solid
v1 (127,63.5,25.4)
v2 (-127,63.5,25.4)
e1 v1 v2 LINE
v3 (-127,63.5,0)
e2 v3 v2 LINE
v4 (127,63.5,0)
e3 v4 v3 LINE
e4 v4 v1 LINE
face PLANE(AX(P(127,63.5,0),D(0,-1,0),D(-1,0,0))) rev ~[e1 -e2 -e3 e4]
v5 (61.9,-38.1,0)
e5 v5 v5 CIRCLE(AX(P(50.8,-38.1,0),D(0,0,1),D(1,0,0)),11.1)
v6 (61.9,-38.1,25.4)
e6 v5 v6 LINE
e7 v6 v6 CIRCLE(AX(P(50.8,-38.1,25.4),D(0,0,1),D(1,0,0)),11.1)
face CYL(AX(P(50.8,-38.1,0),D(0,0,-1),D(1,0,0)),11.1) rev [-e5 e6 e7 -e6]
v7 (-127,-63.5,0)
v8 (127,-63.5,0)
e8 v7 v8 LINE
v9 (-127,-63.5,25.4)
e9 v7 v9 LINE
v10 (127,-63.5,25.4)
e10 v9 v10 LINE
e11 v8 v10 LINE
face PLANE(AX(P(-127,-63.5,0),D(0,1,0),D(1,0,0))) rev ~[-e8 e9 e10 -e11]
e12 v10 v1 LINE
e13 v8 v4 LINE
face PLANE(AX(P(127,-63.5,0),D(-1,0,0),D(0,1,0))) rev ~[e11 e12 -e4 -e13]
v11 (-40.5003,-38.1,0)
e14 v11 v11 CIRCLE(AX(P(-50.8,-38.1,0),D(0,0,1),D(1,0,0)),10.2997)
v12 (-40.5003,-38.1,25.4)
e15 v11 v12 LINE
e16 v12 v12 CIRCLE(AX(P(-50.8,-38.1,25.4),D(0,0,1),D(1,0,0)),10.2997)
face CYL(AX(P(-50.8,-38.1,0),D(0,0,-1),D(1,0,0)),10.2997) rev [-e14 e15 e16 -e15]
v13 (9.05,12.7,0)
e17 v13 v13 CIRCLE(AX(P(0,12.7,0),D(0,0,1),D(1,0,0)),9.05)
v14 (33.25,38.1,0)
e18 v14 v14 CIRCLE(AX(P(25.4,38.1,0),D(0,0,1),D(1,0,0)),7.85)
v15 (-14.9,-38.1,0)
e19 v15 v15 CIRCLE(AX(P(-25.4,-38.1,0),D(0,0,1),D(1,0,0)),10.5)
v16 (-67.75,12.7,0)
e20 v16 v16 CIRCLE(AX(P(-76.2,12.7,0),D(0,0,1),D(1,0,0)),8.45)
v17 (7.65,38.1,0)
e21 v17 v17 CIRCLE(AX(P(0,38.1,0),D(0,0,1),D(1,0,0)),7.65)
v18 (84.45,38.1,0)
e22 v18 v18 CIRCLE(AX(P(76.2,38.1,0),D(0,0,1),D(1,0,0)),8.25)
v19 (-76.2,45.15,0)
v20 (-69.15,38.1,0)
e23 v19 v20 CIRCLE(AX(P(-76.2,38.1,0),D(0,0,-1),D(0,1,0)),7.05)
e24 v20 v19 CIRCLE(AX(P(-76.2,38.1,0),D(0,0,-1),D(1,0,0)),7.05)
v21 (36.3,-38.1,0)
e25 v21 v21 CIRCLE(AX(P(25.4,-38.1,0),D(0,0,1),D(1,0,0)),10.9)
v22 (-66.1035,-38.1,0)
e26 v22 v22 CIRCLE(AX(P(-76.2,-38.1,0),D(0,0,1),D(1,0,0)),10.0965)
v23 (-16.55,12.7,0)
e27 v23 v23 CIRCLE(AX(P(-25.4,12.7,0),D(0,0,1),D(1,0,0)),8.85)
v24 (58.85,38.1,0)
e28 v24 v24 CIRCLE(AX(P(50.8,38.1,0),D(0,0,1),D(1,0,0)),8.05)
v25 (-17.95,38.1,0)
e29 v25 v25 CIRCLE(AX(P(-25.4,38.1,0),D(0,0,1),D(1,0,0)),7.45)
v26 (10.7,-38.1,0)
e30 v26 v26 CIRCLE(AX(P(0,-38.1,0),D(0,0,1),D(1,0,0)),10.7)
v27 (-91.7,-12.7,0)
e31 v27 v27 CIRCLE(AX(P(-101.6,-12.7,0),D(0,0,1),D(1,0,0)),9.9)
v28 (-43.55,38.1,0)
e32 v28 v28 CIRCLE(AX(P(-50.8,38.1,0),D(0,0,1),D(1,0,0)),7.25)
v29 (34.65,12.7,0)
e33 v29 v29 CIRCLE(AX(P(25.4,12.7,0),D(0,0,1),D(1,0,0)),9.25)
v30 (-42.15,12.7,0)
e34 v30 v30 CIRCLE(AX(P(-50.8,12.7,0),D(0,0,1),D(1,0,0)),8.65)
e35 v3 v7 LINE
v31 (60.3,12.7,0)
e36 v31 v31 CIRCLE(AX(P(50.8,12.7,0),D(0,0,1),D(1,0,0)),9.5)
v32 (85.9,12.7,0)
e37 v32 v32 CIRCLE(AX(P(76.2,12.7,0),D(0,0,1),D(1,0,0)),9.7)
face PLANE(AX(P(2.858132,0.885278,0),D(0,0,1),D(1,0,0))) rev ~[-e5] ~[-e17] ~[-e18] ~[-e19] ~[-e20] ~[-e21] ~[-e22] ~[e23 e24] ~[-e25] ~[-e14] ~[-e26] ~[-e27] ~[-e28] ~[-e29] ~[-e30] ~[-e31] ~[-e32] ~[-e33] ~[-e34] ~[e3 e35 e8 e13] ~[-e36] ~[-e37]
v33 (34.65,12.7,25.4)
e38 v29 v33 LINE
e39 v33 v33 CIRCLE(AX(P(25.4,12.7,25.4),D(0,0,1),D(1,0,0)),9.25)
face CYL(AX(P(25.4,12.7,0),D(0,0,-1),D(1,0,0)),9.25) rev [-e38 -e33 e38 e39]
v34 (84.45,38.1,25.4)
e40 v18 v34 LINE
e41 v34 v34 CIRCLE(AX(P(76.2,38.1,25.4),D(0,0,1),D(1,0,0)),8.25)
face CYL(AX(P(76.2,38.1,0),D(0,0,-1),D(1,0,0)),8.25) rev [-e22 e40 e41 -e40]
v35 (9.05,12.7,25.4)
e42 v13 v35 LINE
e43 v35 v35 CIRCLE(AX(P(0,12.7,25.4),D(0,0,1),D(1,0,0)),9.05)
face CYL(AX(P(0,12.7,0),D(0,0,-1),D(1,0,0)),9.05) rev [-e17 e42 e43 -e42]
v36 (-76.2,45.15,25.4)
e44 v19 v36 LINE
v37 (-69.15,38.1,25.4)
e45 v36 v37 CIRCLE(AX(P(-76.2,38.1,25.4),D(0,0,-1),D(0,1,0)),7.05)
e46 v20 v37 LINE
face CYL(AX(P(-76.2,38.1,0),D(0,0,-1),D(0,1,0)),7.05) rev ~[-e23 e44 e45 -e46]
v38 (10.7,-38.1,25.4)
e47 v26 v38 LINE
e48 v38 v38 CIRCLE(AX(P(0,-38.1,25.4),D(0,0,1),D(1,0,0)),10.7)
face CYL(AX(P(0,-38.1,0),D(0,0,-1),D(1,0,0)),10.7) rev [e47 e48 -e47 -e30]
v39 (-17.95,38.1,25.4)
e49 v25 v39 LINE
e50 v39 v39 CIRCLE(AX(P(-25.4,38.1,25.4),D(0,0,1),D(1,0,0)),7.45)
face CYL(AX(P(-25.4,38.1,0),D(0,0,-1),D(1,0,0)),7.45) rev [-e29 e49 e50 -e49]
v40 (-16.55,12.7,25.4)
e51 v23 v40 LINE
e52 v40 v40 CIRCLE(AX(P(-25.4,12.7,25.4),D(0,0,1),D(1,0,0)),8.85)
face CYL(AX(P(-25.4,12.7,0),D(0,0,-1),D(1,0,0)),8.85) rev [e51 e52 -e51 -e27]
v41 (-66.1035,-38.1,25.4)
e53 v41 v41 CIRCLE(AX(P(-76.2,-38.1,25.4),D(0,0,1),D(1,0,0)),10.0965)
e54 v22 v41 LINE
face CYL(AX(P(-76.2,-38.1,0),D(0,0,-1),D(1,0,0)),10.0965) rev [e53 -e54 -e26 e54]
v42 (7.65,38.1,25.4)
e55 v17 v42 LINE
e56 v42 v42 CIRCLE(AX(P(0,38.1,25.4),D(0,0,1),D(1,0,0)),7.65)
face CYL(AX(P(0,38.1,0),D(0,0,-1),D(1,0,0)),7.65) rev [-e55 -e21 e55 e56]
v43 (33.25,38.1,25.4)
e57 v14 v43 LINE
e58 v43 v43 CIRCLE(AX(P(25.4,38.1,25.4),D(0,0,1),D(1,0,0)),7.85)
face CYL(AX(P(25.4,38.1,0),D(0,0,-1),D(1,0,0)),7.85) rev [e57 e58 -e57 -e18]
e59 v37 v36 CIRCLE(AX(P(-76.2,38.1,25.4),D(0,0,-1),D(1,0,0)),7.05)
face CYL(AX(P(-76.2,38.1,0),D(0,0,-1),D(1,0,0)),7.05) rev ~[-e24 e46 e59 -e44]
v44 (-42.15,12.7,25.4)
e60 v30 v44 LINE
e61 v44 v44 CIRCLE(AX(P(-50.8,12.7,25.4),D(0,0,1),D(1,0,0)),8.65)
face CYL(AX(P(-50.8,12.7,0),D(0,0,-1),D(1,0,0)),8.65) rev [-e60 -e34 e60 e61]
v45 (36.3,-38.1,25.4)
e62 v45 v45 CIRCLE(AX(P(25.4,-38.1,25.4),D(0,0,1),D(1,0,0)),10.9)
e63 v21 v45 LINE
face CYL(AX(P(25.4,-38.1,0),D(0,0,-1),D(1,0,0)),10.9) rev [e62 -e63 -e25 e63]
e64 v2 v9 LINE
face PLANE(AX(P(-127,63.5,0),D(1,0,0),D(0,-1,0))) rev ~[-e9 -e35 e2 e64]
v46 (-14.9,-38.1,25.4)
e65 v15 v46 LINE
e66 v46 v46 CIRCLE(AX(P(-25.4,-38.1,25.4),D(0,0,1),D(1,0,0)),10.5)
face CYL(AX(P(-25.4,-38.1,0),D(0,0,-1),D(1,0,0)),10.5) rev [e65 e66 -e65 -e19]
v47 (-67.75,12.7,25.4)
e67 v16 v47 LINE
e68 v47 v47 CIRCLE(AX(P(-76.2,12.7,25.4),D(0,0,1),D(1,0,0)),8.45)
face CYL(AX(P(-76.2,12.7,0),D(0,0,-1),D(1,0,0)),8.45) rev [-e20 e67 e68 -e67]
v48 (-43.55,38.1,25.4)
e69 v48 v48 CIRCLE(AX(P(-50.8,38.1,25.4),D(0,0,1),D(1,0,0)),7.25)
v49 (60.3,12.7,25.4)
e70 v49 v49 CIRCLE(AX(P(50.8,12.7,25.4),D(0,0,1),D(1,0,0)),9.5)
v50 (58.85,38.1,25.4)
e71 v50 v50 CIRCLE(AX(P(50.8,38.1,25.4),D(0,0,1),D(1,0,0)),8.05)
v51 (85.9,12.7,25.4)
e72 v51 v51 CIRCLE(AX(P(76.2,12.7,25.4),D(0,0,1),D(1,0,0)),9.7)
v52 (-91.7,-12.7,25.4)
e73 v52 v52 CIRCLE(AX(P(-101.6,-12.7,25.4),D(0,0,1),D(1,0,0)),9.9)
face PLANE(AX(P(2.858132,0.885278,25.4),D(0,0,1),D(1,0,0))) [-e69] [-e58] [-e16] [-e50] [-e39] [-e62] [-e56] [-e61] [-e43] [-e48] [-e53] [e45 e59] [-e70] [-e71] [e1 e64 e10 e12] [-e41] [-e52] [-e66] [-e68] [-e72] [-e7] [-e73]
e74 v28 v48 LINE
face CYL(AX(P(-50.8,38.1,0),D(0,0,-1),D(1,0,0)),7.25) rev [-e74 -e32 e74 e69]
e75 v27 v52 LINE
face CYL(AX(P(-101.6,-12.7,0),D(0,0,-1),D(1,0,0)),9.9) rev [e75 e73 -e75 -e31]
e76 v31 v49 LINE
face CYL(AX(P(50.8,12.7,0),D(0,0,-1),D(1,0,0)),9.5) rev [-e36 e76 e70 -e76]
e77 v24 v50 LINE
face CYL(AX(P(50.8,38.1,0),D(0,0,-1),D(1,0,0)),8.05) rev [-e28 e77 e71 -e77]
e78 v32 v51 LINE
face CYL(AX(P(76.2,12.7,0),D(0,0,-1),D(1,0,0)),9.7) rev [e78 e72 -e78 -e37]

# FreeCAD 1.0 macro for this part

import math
import FreeCAD as App
import Part
import Sketcher

V = App.Vector


def add_polygon(sketch, points):
    """Adds a closed chain of lines whose ends are joined by coincident constraints."""
    first, n = sketch.GeometryCount, len(points)
    for a, b in zip(points, points[1:] + points[:1]):
        sketch.addGeometry(Part.LineSegment(App.Vector(*a, 0), App.Vector(*b, 0)), False)
    for i in range(n):
        sketch.addConstraint(Sketcher.Constraint("Coincident", first + i, 2, first + (i + 1) % n, 1))

doc = App.newDocument("Part")
body = doc.addObject("PartDesign::Body", "Body")

sketch1 = body.newObject("Sketcher::SketchObject", "Sketch")
sketch1.AttachmentSupport = (doc.getObject("XY_Plane"), [""])
sketch1.MapMode = "FlatFace"
add_polygon(sketch1, [(127, 64), (-127, 64), (-127, -64), (127, -64)])
sketch1.addGeometry(Part.Circle(V(-76, -38, 0), V(0, 0, 1), 10), False)
sketch1.addGeometry(Part.Circle(V(-51, -38, 0), V(0, 0, 1), 10), False)
sketch1.addGeometry(Part.Circle(V(-25, -38, 0), V(0, 0, 1), 10), False)
sketch1.addGeometry(Part.Circle(V(0, -38, 0), V(0, 0, 1), 11), False)
sketch1.addGeometry(Part.Circle(V(-102, -13, 0), V(0, 0, 1), 10), False)
sketch1.addGeometry(Part.Circle(V(25, -38, 0), V(0, 0, 1), 11), False)
sketch1.addGeometry(Part.Circle(V(51, -38, 0), V(0, 0, 1), 11), False)
sketch1.addGeometry(Part.Circle(V(-76, 13, 0), V(0, 0, 1), 8), False)
sketch1.addGeometry(Part.Circle(V(-51, 13, 0), V(0, 0, 1), 9), False)
sketch1.addGeometry(Part.Circle(V(-25, 13, 0), V(0, 0, 1), 9), False)
sketch1.addGeometry(Part.Circle(V(0, 13, 0), V(0, 0, 1), 9), False)
sketch1.addGeometry(Part.ArcOfCircle(Part.Circle(V(-76, 38, 0), V(0, 0, 1), 7), math.radians(90), math.radians(360)), False)
sketch1.addGeometry(Part.ArcOfCircle(Part.Circle(V(-76, 38, 0), V(0, 0, 1), 7), math.radians(0), math.radians(90)), False)
sketch1.addGeometry(Part.Circle(V(-51, 38, 0), V(0, 0, 1), 7), False)
sketch1.addGeometry(Part.Circle(V(-25, 38, 0), V(0, 0, 1), 7), False)
sketch1.addGeometry(Part.Circle(V(0, 38, 0), V(0, 0, 1), 8), False)
sketch1.addGeometry(Part.Circle(V(25, 13, 0), V(0, 0, 1), 9), False)
sketch1.addGeometry(Part.Circle(V(51, 13, 0), V(0, 0, 1), 10), False)
sketch1.addGeometry(Part.Circle(V(76, 13, 0), V(0, 0, 1), 10), False)
sketch1.addGeometry(Part.Circle(V(25, 38, 0), V(0, 0, 1), 8), False)
sketch1.addGeometry(Part.Circle(V(51, 38, 0), V(0, 0, 1), 8), False)
sketch1.addGeometry(Part.Circle(V(76, 38, 0), V(0, 0, 1), 8), False)
sketch1.addConstraint([
    Sketcher.Constraint("Tangent", 15, 1, 16, 2),
    Sketcher.Constraint("Coincident", 16, 1, 15, 2),
    Sketcher.Constraint("Horizontal", 0),
    Sketcher.Constraint("Vertical", 1),
    Sketcher.Constraint("Horizontal", 2),
    Sketcher.Constraint("Vertical", 3),
    Sketcher.Constraint("Symmetric", 10, 3, 17, 3, -1, 1),
    Sketcher.Constraint("Symmetric", 9, 3, 18, 3, -1, 1),
    Sketcher.Constraint("Symmetric", 7, 3, 19, 3, -1, 1),
    Sketcher.Constraint("Symmetric", 6, 3, 23, 3, -1, 1),
    Sketcher.Constraint("Symmetric", 5, 3, 24, 3, -1, 1),
    Sketcher.Constraint("Symmetric", 4, 3, 25, 3, -1, 1),
    Sketcher.Constraint("Symmetric", 0, 2, 2, 2, -1, 1),
    Sketcher.Constraint("Symmetric", 6, 3, 9, 3, -2),
    Sketcher.Constraint("Symmetric", 5, 3, 10, 3, -2),
    Sketcher.Constraint("Symmetric", 13, 3, 20, 3, -2),
    Sketcher.Constraint("Symmetric", 12, 3, 21, 3, -2),
    Sketcher.Constraint("Symmetric", 11, 3, 22, 3, -2),
    Sketcher.Constraint("Symmetric", 15, 3, 25, 3, -2),
    Sketcher.Constraint("PointOnObject", 7, 3, -2),
    Sketcher.Constraint("PointOnObject", 14, 3, -2),
    Sketcher.Constraint("Horizontal", 4, 3, 5, 3),
    Sketcher.Constraint("Horizontal", 5, 3, 6, 3),
    Sketcher.Constraint("Horizontal", 6, 3, 7, 3),
    Sketcher.Constraint("Horizontal", 11, 3, 12, 3),
    Sketcher.Constraint("Horizontal", 12, 3, 13, 3),
    Sketcher.Constraint("Horizontal", 13, 3, 14, 3),
    Sketcher.Constraint("Horizontal", 25, 3, 16, 1),
    Sketcher.Constraint("Vertical", 4, 3, 11, 3),
    Sketcher.Constraint("Vertical", 5, 3, 12, 3),
    Sketcher.Constraint("Vertical", 6, 3, 13, 3),
    Sketcher.Constraint("Vertical", 16, 3, 15, 1),
    Sketcher.Constraint("Diameter", 6, 21.0),
    Sketcher.Constraint("Diameter", 21, 19.0),
    Sketcher.Constraint("Diameter", 7, 21.4),
    Sketcher.Constraint("Diameter", 8, 19.8),
    Sketcher.Constraint("Diameter", 9, 21.8),
    Sketcher.Constraint("Diameter", 10, 22.2),
    Sketcher.Constraint("Diameter", 11, 16.9),
    Sketcher.Constraint("Diameter", 12, 17.3),
    Sketcher.Constraint("Diameter", 13, 17.7),
    Sketcher.Constraint("Diameter", 14, 18.1),
    Sketcher.Constraint("Diameter", 17, 14.5),
    Sketcher.Constraint("Diameter", 18, 14.9),
    Sketcher.Constraint("Diameter", 19, 15.3),
    Sketcher.Constraint("Diameter", 20, 18.5),
    Sketcher.Constraint("Diameter", 22, 19.4),
    Sketcher.Constraint("Diameter", 23, 15.7),
    Sketcher.Constraint("Diameter", 24, 16.1),
    Sketcher.Constraint("Diameter", 25, 16.5),
    Sketcher.Constraint("DistanceX", 0, 2, 0, 1, 254.0),
    Sketcher.Constraint("DistanceY", 1, 2, 1, 1, 127.0),
    Sketcher.Constraint("Radius", 15, 7.05),
    Sketcher.Constraint("Diameter", 4, 20.193),
    Sketcher.Constraint("DistanceX", 8, 3, 9, 3, 127.0),
    Sketcher.Constraint("DistanceX", 4, 3, 10, 3, 127.0),
    Sketcher.Constraint("Diameter", 5, 20.5994),
    Sketcher.Constraint("DistanceX", 4, 3, -1, 1, 76.2),
    Sketcher.Constraint("DistanceY", 4, 3, -1, 1, 38.1),
    Sketcher.Constraint("DistanceX", 6, 3, -1, 1, 25.4),
    Sketcher.Constraint("DistanceY", 8, 3, -1, 1, 12.7),
    Sketcher.Constraint("DistanceY", -1, 1, 11, 3, 12.7),
])
pad1 = body.newObject("PartDesign::Pad", "Pad")
pad1.Profile = sketch1
pad1.Length = 25.4

doc.recompute()
